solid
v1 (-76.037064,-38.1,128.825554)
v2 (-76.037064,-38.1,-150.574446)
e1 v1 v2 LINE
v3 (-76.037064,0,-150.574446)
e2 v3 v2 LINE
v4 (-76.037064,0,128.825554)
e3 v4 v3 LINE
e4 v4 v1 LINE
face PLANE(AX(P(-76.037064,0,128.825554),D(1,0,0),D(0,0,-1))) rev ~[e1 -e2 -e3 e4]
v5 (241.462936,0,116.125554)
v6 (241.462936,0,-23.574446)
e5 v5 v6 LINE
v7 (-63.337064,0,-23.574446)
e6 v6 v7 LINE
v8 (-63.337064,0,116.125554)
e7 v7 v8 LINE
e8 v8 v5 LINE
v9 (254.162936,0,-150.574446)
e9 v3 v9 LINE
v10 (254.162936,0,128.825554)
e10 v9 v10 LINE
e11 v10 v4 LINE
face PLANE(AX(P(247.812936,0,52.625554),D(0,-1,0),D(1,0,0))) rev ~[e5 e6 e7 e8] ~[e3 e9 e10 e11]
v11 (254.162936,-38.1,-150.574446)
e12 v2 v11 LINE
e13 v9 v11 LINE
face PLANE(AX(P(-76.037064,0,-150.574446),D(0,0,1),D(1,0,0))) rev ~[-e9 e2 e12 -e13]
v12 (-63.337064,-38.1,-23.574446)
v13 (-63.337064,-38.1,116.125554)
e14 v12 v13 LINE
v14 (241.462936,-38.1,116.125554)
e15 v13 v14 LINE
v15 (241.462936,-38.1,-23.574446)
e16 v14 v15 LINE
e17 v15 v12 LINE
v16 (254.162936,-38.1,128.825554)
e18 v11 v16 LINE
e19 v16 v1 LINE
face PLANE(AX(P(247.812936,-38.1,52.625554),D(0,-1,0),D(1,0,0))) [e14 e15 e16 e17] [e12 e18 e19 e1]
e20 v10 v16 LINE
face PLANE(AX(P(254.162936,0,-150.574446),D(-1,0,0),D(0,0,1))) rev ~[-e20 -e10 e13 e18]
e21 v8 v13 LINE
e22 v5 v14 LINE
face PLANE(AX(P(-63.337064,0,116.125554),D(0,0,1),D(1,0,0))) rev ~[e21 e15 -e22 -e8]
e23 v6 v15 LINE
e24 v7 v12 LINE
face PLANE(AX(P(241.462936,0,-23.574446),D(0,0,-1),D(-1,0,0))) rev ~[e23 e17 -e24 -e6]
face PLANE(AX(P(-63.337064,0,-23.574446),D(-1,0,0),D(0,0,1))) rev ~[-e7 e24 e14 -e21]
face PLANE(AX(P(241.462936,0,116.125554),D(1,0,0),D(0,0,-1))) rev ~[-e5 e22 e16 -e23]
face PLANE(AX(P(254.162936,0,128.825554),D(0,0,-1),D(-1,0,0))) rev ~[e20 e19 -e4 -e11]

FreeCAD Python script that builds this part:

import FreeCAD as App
import Part
import Sketcher
Q = App.Units.Quantity


def add_polygon(sketch, points):
    """Adds a closed chain of lines whose ends are joined by coincident constraints."""
    first, n = sketch.GeometryCount, len(points)
    for a, b in zip(points, points[1:] + points[:1]):
        sketch.addGeometry(Part.LineSegment(App.Vector(*a, 0), App.Vector(*b, 0)), False)
    for i in range(n):
        sketch.addConstraint(Sketcher.Constraint("Coincident", first + i, 2, first + (i + 1) % n, 1))

doc = App.newDocument("Part")
body = doc.addObject("PartDesign::Body", "Body")

# Sketch on XZ plane
sketch1 = body.newObject("Sketcher::SketchObject", "Sketch")
sketch1.AttachmentSupport = (doc.getObject("XZ_Plane"), [""])
sketch1.MapMode = "FlatFace"
add_polygon(sketch1, [(254, 129), (-76, 129), (-76, -151), (254, -151)])  # lines 0-3
add_polygon(sketch1, [(-63, 116), (241, 116), (241, -24), (-63, -24)])  # lines 4-7
sketch1.addConstraint(Sketcher.Constraint("Horizontal", 0))
sketch1.addConstraint(Sketcher.Constraint("Vertical", 1))
sketch1.addConstraint(Sketcher.Constraint("Horizontal", 2))
sketch1.addConstraint(Sketcher.Constraint("Vertical", 3))
sketch1.addConstraint(Sketcher.Constraint("Horizontal", 4))
sketch1.addConstraint(Sketcher.Constraint("Vertical", 5))
sketch1.addConstraint(Sketcher.Constraint("Horizontal", 6))
sketch1.addConstraint(Sketcher.Constraint("Vertical", 7))
sketch1.addConstraint(Sketcher.Constraint("DistanceX", 0, 2, 0, 1, Q("13 in")))
sketch1.addConstraint(Sketcher.Constraint("DistanceX", 4, 1, 4, 2, Q("12 in")))
sketch1.addConstraint(Sketcher.Constraint("DistanceY", 1, 2, 1, 1, Q("11 in")))
sketch1.addConstraint(Sketcher.Constraint("DistanceY", 5, 2, 5, 1, Q("5.5 in")))
sketch1.addConstraint(Sketcher.Constraint("DistanceY", 2, 2, 5, 2, Q("5 in")))
sketch1.addConstraint(Sketcher.Constraint("DistanceX", 4, 2, 3, 2, Q("0.5 in")))
sketch1.addConstraint(Sketcher.Constraint("DistanceX", 0, 2, -1, 1, 76.037064))
sketch1.addConstraint(Sketcher.Constraint("DistanceY", -1, 1, 0, 2, 128.825554))
pad1 = body.newObject("PartDesign::Pad", "Pad")
pad1.Profile = sketch1
pad1.Length = Q("1.5 in")

doc.recompute()
